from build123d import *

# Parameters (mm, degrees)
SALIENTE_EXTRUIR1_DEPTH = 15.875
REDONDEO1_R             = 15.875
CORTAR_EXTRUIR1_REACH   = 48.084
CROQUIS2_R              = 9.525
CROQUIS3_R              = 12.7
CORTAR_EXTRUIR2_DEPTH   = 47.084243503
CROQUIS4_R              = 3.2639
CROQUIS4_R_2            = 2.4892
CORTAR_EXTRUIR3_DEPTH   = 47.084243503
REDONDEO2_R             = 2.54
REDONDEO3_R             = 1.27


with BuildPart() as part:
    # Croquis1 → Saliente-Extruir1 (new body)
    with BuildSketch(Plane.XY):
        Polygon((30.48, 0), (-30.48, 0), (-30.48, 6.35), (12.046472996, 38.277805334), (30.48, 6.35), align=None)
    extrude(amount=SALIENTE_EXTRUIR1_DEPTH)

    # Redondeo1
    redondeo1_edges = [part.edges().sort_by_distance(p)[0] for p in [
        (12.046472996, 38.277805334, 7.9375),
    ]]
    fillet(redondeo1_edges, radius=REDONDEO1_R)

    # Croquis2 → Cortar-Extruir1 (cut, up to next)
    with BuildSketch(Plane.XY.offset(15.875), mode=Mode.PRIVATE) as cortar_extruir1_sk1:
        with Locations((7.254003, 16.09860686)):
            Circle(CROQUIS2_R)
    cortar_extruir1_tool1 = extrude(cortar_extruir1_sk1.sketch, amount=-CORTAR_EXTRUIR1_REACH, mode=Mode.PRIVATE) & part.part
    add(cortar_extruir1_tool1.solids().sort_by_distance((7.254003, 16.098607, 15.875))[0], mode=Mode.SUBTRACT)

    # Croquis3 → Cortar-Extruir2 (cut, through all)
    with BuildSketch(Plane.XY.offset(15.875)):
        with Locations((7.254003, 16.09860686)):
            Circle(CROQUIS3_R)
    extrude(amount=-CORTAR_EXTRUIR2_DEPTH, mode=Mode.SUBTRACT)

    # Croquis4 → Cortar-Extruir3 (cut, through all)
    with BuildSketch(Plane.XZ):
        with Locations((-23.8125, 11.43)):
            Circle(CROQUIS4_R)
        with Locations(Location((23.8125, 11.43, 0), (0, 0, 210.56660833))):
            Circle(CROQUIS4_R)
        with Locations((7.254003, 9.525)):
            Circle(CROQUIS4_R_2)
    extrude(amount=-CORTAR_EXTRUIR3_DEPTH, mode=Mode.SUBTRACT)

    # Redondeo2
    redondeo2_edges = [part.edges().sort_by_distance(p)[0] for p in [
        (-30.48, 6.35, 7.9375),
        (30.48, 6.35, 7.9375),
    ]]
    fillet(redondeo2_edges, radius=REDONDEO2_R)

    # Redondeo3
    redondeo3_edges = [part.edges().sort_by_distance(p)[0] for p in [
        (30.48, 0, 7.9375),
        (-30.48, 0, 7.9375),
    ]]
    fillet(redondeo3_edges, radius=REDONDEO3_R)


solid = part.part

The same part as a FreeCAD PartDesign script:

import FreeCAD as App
import Part
import Sketcher

V = App.Vector
Q = App.Units.Quantity


def edges_at(feature, points):
    """Names of the edges that pass closest to the given points."""
    edges = feature.Shape.Edges
    near = lambda p: min(range(len(edges)), key=lambda i: edges[i].distToShape(Part.Vertex(*p))[0])
    return sorted({f"Edge{near(p) + 1}" for p in points})


def add_polygon(sketch, points):
    """Adds a closed chain of lines whose ends are joined by coincident constraints."""
    first, n = sketch.GeometryCount, len(points)
    for a, b in zip(points, points[1:] + points[:1]):
        sketch.addGeometry(Part.LineSegment(App.Vector(*a, 0), App.Vector(*b, 0)), False)
    for i in range(n):
        sketch.addConstraint(Sketcher.Constraint("Coincident", first + i, 2, first + (i + 1) % n, 1))

doc = App.newDocument("Part")
body = doc.addObject("PartDesign::Body", "Body")

# Sketch on XY plane
sketch1 = body.newObject("Sketcher::SketchObject", "Sketch")
sketch1.AttachmentSupport = (doc.getObject("XY_Plane"), [""])
sketch1.MapMode = "FlatFace"
add_polygon(sketch1, [(-30, 0), (30, 0), (30, 6), (12, 38), (-30, 6)])  # lines 0-4
sketch1.addConstraint([
    Sketcher.Constraint("Horizontal", 0),
    Sketcher.Constraint("Vertical", 1),
    Sketcher.Constraint("Vertical", 4),
    Sketcher.Constraint("Symmetric", 0, 2, 4, 2, -1, 1),
    Sketcher.Constraint("Horizontal", 1, 2, 3, 2),
    Sketcher.Constraint("DistanceX", 0, 1, 0, 2, Q("2.4 in")),
    Sketcher.Constraint("Angle", 2, Q("120 deg")),
    Sketcher.Constraint("DistanceY", 1, 1, 1, 2, Q("0.25 in")),
    Sketcher.Constraint("Distance", 3, Q("53.177868 mm")),
])
pad1 = body.newObject("PartDesign::Pad", "Pad")
pad1.Profile = sketch1
pad1.Length = Q("0.625 in")
doc.recompute()

fillet = body.newObject("PartDesign::Fillet", "Fillet")
fillet.Base = (pad1, edges_at(pad1, [(12.046, 38.278, 7.938)]))
fillet.Radius = Q("0.625 in")

# Sketch on XY plane
sketch2 = body.newObject("Sketcher::SketchObject", "Sketch001")
sketch2.AttachmentSupport = (doc.getObject("XY_Plane"), [""])
sketch2.MapMode = "FlatFace"
sketch2.AttachmentOffset = App.Placement(V(0, 0, 0.625 * 25.4), App.Rotation())
sketch2.addGeometry(Part.Circle(V(7, 16, 0), V(0, 0, 1), 10), False)
sketch2.addConstraint([
    Sketcher.Constraint("Diameter", 0, Q("0.75 in")),
    Sketcher.Constraint("DistanceX", -1, 1, 0, 3, Q("7.254003 mm")),
    Sketcher.Constraint("DistanceY", -1, 1, 0, 3, Q("16.098607 mm")),
])
pocket1 = body.newObject("PartDesign::Pocket", "Pocket")
pocket1.Profile = sketch2
pocket1.Type = "UpToFirst"

# Sketch on XY plane
sketch3 = body.newObject("Sketcher::SketchObject", "Sketch002")
sketch3.AttachmentSupport = (doc.getObject("XY_Plane"), [""])
sketch3.MapMode = "FlatFace"
sketch3.AttachmentOffset = App.Placement(V(0, 0, 0.625 * 25.4), App.Rotation())
sketch3.addGeometry(Part.Circle(V(7, 16, 0), V(0, 0, 1), 13), False)
sketch3.addConstraint([
    Sketcher.Constraint("Diameter", 0, Q("1 in")),
    Sketcher.Constraint("DistanceX", -1, 1, 0, 3, Q("7.254003 mm")),
    Sketcher.Constraint("DistanceY", -1, 1, 0, 3, Q("16.098607 mm")),
])
pocket2 = body.newObject("PartDesign::Pocket", "Pocket001")
pocket2.Profile = sketch3
pocket2.Type = "ThroughAll"

# Sketch on XZ plane
sketch4 = body.newObject("Sketcher::SketchObject", "Sketch003")
sketch4.AttachmentSupport = (doc.getObject("XZ_Plane"), [""])
sketch4.MapMode = "FlatFace"
sketch4.addGeometry([
    Part.Circle(V(-23.8, 11.4, 0), V(0, 0, 1), 3.3),
    Part.Circle(V(23.8, 11.4, 0), V(0, 0, 1), 3.3),
    Part.Circle(V(7.3, 9.5, 0), V(0, 0, 1), 2.5),
], False)
sketch4.addConstraint([
    Sketcher.Constraint("Equal", 0, 1),
    Sketcher.Constraint("Symmetric", 0, 3, 1, 3, -2),
    Sketcher.Constraint("Diameter", 0, Q("0.257 in")),
    Sketcher.Constraint("Diameter", 2, Q("0.196 in")),
    Sketcher.Constraint("DistanceY", -1, 1, 0, 3, Q("0.45 in")),
    Sketcher.Constraint("DistanceX", 0, 3, -1, 1, Q("0.9375 in")),
    Sketcher.Constraint("DistanceY", -1, 1, 2, 3, Q("0.375 in")),
    Sketcher.Constraint("DistanceX", -1, 1, 2, 3, Q("7.254003 mm")),
])
pocket3 = body.newObject("PartDesign::Pocket", "Pocket002")
pocket3.Profile = sketch4
pocket3.Type = "ThroughAll"
doc.recompute()

fillet2 = body.newObject("PartDesign::Fillet", "Fillet001")
fillet2.Base = (pocket3, edges_at(pocket3, [(-30.48, 6.35, 7.938), (30.48, 6.35, 7.938)]))
fillet2.Radius = Q("0.1 in")
doc.recompute()

fillet3 = body.newObject("PartDesign::Fillet", "Fillet002")
fillet3.Base = (fillet2, edges_at(fillet2, [(30.48, 0, 7.938), (-30.48, 0, 7.938)]))
fillet3.Radius = Q("0.05 in")

doc.recompute()
